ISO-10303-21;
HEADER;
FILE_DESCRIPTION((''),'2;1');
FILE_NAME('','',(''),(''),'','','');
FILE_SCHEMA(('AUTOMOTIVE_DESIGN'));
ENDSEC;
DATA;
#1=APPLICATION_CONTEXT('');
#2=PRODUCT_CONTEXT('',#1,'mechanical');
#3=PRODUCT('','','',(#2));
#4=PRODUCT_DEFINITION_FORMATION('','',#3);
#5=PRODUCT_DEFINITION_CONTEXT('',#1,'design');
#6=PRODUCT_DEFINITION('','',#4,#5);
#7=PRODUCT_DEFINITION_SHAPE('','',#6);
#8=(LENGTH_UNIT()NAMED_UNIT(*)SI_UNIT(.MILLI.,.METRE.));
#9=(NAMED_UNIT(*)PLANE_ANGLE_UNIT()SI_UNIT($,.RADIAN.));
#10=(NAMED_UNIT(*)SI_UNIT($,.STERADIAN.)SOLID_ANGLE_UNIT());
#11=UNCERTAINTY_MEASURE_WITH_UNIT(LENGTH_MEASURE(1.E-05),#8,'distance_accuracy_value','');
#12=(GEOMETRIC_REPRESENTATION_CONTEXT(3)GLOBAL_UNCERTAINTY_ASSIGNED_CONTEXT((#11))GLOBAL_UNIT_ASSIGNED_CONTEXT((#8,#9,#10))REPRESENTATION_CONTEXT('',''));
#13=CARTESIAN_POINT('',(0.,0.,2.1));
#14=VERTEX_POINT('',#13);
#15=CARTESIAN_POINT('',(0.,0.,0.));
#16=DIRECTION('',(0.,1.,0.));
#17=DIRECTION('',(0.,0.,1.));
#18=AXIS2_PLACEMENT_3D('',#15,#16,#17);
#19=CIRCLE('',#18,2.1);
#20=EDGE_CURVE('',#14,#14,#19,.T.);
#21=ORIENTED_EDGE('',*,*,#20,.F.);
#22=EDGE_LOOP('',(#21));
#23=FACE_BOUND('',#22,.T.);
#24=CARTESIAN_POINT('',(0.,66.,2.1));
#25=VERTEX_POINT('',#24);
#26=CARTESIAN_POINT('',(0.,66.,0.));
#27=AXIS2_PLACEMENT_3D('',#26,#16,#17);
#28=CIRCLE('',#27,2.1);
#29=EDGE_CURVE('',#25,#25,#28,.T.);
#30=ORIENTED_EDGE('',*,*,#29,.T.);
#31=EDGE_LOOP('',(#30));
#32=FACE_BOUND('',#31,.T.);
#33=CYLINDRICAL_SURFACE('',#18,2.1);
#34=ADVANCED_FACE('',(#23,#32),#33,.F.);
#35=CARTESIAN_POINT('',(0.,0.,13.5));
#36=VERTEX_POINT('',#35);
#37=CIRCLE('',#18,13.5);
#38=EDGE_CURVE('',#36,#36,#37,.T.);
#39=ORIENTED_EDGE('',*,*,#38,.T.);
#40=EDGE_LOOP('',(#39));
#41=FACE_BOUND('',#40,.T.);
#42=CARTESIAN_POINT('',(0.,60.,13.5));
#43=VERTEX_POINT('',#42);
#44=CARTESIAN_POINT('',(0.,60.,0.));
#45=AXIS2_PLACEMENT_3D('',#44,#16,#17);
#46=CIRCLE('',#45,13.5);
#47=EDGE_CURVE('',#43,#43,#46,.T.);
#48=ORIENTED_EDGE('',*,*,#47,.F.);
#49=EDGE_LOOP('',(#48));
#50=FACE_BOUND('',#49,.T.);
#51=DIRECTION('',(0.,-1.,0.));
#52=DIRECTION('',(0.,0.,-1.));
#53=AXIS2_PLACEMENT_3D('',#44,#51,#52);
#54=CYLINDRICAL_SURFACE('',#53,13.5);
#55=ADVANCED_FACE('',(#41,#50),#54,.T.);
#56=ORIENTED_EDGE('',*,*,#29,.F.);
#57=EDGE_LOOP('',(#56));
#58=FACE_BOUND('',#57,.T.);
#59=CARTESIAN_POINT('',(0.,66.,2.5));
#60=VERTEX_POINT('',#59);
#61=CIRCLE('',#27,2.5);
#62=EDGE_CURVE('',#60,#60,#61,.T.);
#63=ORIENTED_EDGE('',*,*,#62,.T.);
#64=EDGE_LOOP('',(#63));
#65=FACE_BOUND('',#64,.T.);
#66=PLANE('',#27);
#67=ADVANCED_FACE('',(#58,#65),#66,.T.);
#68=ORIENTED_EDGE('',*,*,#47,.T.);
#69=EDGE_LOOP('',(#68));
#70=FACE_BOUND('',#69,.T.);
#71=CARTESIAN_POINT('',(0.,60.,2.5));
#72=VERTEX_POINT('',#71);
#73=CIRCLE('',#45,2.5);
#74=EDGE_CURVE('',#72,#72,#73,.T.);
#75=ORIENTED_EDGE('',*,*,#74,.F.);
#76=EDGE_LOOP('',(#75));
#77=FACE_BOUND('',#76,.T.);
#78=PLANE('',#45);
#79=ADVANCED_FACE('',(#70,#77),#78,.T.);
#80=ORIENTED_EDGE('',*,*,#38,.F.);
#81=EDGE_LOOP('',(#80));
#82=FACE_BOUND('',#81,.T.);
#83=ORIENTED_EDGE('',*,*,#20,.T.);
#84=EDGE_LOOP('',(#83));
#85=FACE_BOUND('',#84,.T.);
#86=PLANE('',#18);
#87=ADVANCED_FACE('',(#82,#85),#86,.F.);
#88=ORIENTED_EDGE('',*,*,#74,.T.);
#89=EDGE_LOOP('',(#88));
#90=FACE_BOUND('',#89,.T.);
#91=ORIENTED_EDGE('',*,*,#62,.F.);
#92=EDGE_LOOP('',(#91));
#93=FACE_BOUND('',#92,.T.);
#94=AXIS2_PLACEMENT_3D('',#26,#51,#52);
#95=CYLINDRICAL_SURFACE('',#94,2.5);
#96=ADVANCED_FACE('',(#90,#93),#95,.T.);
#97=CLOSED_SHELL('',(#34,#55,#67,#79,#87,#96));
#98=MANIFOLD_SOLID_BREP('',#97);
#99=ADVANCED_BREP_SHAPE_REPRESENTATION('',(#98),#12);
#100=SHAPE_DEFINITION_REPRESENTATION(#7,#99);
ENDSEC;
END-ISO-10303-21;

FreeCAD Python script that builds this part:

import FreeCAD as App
import Part
import Sketcher
from FreeCAD import Vector
Q = App.Units.Quantity

doc = App.newDocument("Part")
params = doc.addObject("Spreadsheet::Sheet", "Params")
for row, (alias, value) in enumerate([
    ("sketch1_diameter", "27 mm"),
    ("pad1_length", "60 mm"),
    ("sketch2_diameter", "5 mm"),
    ("pad2_length", "6 mm"),
    ("sketch3_diameter", "4.2 mm"),
], start=1):
    params.set(f"A{row}", alias)
    params.set(f"B{row}", "=" + value)
    params.setAlias(f"B{row}", alias)

body = doc.addObject("PartDesign::Body", "Body")

# Sketch on XZ plane
sketch1 = doc.addObject("Sketcher::SketchObject", "Sketch")
body.addObject(sketch1)
sketch1.AttachmentSupport = (doc.XZ_Plane, [""])
sketch1.MapMode = "FlatFace"
sketch1.addGeometry(Part.Circle(Vector(0, 0, 0), Vector(0, 0, 1), 14), False)
sketch1.addConstraint(Sketcher.Constraint("Coincident", 0, 3, -1, 1))
sketch1.addConstraint(Sketcher.Constraint("Diameter", 0, Q("27 mm")))
sketch1.setExpression("Constraints[1]", "Params.sketch1_diameter")
pad1 = doc.addObject("PartDesign::Pad", "Pad")
body.addObject(pad1)
pad1.Profile = sketch1
pad1.setExpression("Length", "Params.pad1_length")
pad1.Reversed = True

# Sketch on XZ plane
sketch2 = doc.addObject("Sketcher::SketchObject", "Sketch001")
body.addObject(sketch2)
sketch2.AttachmentSupport = (doc.XZ_Plane, [""])
sketch2.MapMode = "FlatFace"
sketch2.AttachmentOffset = App.Placement(Vector(0, 0, -60), App.Rotation())
sketch2.addGeometry(Part.Circle(Vector(0, 0, 0), Vector(0, 0, 1), 2.5), False)
sketch2.addConstraint(Sketcher.Constraint("Coincident", 0, 3, -1, 1))
sketch2.addConstraint(Sketcher.Constraint("Diameter", 0, Q("5 mm")))
sketch2.setExpression("Constraints[1]", "Params.sketch2_diameter")
pad2 = doc.addObject("PartDesign::Pad", "Pad001")
body.addObject(pad2)
pad2.Profile = sketch2
pad2.setExpression("Length", "Params.pad2_length")
pad2.Reversed = True

# Sketch on XZ plane
sketch3 = doc.addObject("Sketcher::SketchObject", "Sketch002")
body.addObject(sketch3)
sketch3.AttachmentSupport = (doc.XZ_Plane, [""])
sketch3.MapMode = "FlatFace"
sketch3.AttachmentOffset = App.Placement(Vector(0, 0, -66), App.Rotation())
sketch3.addGeometry(Part.Circle(Vector(0, 0, 0), Vector(0, 0, 1), 2.1), False)
sketch3.addConstraint(Sketcher.Constraint("Coincident", 0, 3, -1, 1))
sketch3.addConstraint(Sketcher.Constraint("Diameter", 0, Q("4.2 mm")))
sketch3.setExpression("Constraints[1]", "Params.sketch3_diameter")
pocket1 = doc.addObject("PartDesign::Pocket", "Pocket")
body.addObject(pocket1)
pocket1.Profile = sketch3
pocket1.Type = "ThroughAll"
pocket1.Reversed = True

doc.recompute()
